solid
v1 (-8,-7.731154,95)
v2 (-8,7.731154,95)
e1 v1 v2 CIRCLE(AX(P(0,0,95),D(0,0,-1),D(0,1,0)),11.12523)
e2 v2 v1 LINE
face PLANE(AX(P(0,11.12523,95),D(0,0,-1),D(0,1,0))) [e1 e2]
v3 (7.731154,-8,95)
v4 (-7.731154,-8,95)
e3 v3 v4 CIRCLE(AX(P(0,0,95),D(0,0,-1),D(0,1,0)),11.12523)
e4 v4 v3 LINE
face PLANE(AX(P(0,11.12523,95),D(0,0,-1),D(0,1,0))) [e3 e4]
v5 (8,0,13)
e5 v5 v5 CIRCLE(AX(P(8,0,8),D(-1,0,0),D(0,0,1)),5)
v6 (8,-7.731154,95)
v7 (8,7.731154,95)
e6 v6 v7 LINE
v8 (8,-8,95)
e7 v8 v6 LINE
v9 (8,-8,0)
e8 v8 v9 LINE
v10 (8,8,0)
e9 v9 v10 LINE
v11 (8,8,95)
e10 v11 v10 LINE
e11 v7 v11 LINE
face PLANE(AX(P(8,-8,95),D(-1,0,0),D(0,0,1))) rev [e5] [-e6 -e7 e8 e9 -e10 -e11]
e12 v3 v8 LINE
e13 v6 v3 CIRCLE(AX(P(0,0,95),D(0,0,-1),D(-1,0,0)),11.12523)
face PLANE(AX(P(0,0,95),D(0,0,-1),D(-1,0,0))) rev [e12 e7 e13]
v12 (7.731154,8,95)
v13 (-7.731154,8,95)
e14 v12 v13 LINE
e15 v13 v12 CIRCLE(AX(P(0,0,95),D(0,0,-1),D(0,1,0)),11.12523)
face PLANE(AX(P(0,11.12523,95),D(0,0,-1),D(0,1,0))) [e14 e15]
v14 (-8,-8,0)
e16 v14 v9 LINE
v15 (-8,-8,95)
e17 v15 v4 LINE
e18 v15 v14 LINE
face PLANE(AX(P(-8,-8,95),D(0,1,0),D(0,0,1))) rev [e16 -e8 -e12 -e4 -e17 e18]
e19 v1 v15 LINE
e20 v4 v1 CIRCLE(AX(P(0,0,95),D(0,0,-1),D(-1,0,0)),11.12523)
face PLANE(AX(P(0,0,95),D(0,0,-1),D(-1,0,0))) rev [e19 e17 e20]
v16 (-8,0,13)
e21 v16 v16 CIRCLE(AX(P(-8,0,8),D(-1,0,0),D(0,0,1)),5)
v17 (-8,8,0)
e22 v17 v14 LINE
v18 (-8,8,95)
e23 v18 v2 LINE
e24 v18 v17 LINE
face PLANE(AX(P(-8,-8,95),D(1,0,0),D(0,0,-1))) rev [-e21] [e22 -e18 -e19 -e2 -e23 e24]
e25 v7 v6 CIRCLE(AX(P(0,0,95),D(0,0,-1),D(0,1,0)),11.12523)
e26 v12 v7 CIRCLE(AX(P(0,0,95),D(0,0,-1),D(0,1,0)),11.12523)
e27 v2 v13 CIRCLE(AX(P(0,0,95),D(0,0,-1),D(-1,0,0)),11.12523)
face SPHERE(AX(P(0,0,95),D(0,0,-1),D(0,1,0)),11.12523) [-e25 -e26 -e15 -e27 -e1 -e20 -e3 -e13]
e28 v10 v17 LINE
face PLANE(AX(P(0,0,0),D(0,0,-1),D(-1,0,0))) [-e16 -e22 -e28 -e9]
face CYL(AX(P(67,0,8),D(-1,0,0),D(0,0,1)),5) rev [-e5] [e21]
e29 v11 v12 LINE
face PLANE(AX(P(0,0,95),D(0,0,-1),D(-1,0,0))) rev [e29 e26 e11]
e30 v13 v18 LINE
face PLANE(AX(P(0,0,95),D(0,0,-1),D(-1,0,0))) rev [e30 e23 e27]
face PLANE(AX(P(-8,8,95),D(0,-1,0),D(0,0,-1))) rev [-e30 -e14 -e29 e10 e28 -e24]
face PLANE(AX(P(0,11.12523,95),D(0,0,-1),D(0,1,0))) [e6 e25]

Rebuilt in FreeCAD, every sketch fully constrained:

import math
import FreeCAD as App
import Part
import Sketcher


def add_polygon(sketch, points):
    """Adds a closed chain of lines whose ends are joined by coincident constraints."""
    first, n = sketch.GeometryCount, len(points)
    for a, b in zip(points, points[1:] + points[:1]):
        sketch.addGeometry(Part.LineSegment(App.Vector(*a, 0), App.Vector(*b, 0)), False)
    for i in range(n):
        sketch.addConstraint(Sketcher.Constraint("Coincident", first + i, 2, first + (i + 1) % n, 1))

doc = App.newDocument("Part")
body = doc.addObject("PartDesign::Body", "Body")

sketch1 = doc.addObject("Sketcher::SketchObject", "Sketch")
body.addObject(sketch1)
sketch1.AttachmentSupport = (doc.XY_Plane, [""])
sketch1.MapMode = "FlatFace"
add_polygon(sketch1, [(-8, 8), (-8, -8), (8, -8), (8, 8)])
sketch1.addConstraint(Sketcher.Constraint("Vertical", 0))
sketch1.addConstraint(Sketcher.Constraint("Horizontal", 1))
sketch1.addConstraint(Sketcher.Constraint("Vertical", 2))
sketch1.addConstraint(Sketcher.Constraint("Horizontal", 3))
sketch1.addConstraint(Sketcher.Constraint("Symmetric", 0, 2, 2, 2, -1, 1))
sketch1.addConstraint(Sketcher.Constraint("Equal", 3, 0))
sketch1.addConstraint(Sketcher.Constraint("DistanceX", 1, 1, 1, 2, 16.0))
pad1 = doc.addObject("PartDesign::Pad", "Pad")
body.addObject(pad1)
pad1.Profile = sketch1
pad1.Length = 95

sketch2 = doc.addObject("Sketcher::SketchObject", "Sketch001")
body.addObject(sketch2)
sketch2.AttachmentSupport = (doc.YZ_Plane, [""])
sketch2.MapMode = "FlatFace"
sketch2.AttachmentOffset = App.Placement(App.Vector(0, 0, -8), App.Rotation())
sketch2.addGeometry(Part.Circle(App.Vector(0, 8, 0), App.Vector(0, 0, 1), 5), False)
sketch2.addConstraint(Sketcher.Constraint("PointOnObject", 0, 3, -2))
sketch2.addConstraint(Sketcher.Constraint("Diameter", 0, 10.0))
sketch2.addConstraint(Sketcher.Constraint("DistanceY", -1, 1, 0, 3, 8.0))
pocket1 = doc.addObject("PartDesign::Pocket", "Pocket")
body.addObject(pocket1)
pocket1.Profile = sketch2
pocket1.Length = 75
pocket1.Reversed = True

sketch3 = doc.addObject("Sketcher::SketchObject", "Sketch002")
body.addObject(sketch3)
sketch3.AttachmentSupport = (doc.YZ_Plane, [""])
sketch3.MapMode = "FlatFace"
sketch3.addGeometry(Part.LineSegment(App.Vector(0, 95, 0), App.Vector(11, 95, 0)), False)
sketch3.addGeometry(Part.ArcOfCircle(Part.Circle(App.Vector(0, 95, 0), App.Vector(0, 0, 1), 11), math.radians(0), math.radians(90)), False)
sketch3.addGeometry(Part.LineSegment(App.Vector(0, 106, 0), App.Vector(0, 95, 0)), False)
sketch3.addConstraint(Sketcher.Constraint("Coincident", 0, 2, 1, 1))
sketch3.addConstraint(Sketcher.Constraint("Coincident", 1, 2, 2, 1))
sketch3.addConstraint(Sketcher.Constraint("Coincident", 2, 2, 0, 1))
sketch3.addConstraint(Sketcher.Constraint("Horizontal", 0))
sketch3.addConstraint(Sketcher.Constraint("Vertical", 2))
sketch3.addConstraint(Sketcher.Constraint("Coincident", 2, 2, 1, 3))
sketch3.addConstraint(Sketcher.Constraint("PointOnObject", 1, 3, -2))
sketch3.addConstraint(Sketcher.Constraint("DistanceY", -1, 1, 1, 3, 95.0))
sketch3.addConstraint(Sketcher.Constraint("Radius", 1, 11.12523))
revolution = doc.addObject("PartDesign::Revolution", "Revolution")
body.addObject(revolution)
revolution.Profile = sketch3
revolution.ReferenceAxis = (sketch3, ["V_Axis"])
revolution.Angle = 360

doc.recompute()
